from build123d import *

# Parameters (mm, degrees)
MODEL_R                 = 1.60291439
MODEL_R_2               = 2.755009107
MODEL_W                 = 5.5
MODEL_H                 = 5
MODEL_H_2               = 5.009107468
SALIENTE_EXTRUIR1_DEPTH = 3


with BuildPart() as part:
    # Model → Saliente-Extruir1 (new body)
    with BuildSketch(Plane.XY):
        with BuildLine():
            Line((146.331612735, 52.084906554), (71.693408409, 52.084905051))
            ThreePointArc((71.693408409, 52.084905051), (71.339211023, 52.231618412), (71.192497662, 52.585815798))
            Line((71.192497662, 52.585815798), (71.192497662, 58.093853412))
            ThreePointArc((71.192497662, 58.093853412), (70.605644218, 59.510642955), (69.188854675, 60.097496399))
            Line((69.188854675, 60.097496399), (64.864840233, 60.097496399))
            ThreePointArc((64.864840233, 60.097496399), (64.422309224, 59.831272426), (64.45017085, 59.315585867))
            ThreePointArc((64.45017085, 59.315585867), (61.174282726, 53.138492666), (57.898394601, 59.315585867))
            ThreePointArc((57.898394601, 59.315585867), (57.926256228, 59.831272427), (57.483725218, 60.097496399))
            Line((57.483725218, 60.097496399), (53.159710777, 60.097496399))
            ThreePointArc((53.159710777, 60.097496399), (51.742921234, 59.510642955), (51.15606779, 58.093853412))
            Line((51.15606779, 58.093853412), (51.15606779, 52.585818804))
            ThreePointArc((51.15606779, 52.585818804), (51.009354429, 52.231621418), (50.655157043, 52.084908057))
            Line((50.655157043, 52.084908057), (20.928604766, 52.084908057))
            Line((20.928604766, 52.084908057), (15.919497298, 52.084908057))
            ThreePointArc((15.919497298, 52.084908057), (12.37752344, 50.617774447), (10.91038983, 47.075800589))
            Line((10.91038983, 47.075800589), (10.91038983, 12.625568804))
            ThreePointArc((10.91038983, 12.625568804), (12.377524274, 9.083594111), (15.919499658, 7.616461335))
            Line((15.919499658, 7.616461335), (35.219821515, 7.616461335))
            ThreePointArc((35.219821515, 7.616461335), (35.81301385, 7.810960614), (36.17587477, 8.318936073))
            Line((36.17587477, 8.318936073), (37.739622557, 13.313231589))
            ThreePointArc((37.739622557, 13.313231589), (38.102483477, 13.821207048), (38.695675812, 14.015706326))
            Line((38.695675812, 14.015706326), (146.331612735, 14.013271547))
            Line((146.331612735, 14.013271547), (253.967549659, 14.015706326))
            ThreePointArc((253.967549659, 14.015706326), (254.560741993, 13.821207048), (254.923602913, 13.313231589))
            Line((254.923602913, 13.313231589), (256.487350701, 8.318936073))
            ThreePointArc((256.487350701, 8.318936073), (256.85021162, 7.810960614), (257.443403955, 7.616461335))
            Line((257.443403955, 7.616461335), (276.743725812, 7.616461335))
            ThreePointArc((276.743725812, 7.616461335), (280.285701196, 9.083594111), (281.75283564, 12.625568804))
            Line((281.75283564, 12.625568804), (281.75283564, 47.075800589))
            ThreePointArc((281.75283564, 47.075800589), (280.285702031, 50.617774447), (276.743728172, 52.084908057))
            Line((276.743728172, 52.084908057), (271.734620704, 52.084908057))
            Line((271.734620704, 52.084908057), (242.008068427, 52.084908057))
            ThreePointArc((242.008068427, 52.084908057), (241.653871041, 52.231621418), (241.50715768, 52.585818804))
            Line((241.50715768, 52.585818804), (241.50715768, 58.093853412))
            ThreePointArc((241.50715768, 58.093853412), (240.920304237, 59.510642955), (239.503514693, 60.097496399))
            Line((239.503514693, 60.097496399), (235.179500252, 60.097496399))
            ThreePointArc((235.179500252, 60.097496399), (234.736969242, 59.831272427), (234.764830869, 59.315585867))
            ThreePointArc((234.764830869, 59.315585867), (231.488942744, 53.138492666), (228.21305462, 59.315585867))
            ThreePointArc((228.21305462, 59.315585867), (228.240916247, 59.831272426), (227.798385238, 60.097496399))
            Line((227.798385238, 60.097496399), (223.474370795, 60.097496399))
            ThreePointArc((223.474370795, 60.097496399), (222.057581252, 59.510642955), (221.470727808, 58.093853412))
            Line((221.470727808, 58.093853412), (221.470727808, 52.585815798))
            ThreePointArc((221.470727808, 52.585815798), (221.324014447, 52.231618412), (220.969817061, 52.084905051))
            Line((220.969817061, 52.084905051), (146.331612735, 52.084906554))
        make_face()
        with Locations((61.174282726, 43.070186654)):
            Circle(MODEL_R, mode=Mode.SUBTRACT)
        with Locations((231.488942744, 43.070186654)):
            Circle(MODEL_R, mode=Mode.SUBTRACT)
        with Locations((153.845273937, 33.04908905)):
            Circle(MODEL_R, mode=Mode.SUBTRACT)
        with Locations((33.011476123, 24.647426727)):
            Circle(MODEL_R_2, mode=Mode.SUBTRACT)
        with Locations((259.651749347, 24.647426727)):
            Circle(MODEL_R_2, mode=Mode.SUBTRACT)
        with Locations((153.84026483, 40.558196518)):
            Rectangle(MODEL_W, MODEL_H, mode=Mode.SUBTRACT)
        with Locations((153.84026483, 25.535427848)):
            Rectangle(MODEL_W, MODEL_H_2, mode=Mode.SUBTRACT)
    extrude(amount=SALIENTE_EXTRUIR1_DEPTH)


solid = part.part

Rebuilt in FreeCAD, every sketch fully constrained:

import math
import FreeCAD as App
import Part
import Sketcher
Q = App.Units.Quantity

doc = App.newDocument("Part")
body = doc.addObject("PartDesign::Body", "Body")

sketch1 = body.newObject("Sketcher::SketchObject", "Sketch")
sketch1.AttachmentSupport = (doc.getObject("XY_Plane"), [""])
sketch1.MapMode = "FlatFace"
sketch1.addGeometry(Part.LineSegment(App.Vector(146.3, 52.1, 0), App.Vector(71.7, 52.1, 0)), False)
sketch1.addGeometry(Part.ArcOfCircle(Part.Circle(App.Vector(71.7, 52.6, 0), App.Vector(0, 0, 1), 0.5), math.radians(180), math.radians(270)), False)
sketch1.addGeometry(Part.LineSegment(App.Vector(71.2, 52.6, 0), App.Vector(71.2, 58.1, 0)), False)
sketch1.addGeometry(Part.ArcOfCircle(Part.Circle(App.Vector(69.2, 58.1, 0), App.Vector(0, 0, 1), 2), math.radians(0), math.radians(90)), False)
sketch1.addGeometry(Part.LineSegment(App.Vector(69.2, 60.1, 0), App.Vector(64.9, 60.1, 0)), False)
sketch1.addGeometry(Part.ArcOfCircle(Part.Circle(App.Vector(64.9, 59.6, 0), App.Vector(0, 0, 1), 0.5), math.radians(90), math.radians(214)), False)
sketch1.addGeometry(Part.ArcOfCircle(Part.Circle(App.Vector(61.2, 57.1, 0), App.Vector(0, 0, 1), 4), math.radians(146), math.radians(394)), False)
sketch1.addGeometry(Part.ArcOfCircle(Part.Circle(App.Vector(57.5, 59.6, 0), App.Vector(0, 0, 1), 0.5), math.radians(-34), math.radians(90)), False)
sketch1.addGeometry(Part.LineSegment(App.Vector(57.5, 60.1, 0), App.Vector(53.2, 60.1, 0)), False)
sketch1.addGeometry(Part.ArcOfCircle(Part.Circle(App.Vector(53.2, 58.1, 0), App.Vector(0, 0, 1), 2), math.radians(90), math.radians(180)), False)
sketch1.addGeometry(Part.LineSegment(App.Vector(51.2, 58.1, 0), App.Vector(51.2, 52.6, 0)), False)
sketch1.addGeometry(Part.ArcOfCircle(Part.Circle(App.Vector(50.7, 52.6, 0), App.Vector(0, 0, 1), 0.5), math.radians(-90), math.radians(0)), False)
sketch1.addGeometry(Part.LineSegment(App.Vector(50.7, 52.1, 0), App.Vector(15.9, 52.1, 0)), False)
sketch1.addGeometry(Part.ArcOfCircle(Part.Circle(App.Vector(15.9, 47.1, 0), App.Vector(0, 0, 1), 5), math.radians(90), math.radians(180)), False)
sketch1.addGeometry(Part.LineSegment(App.Vector(10.9, 47.1, 0), App.Vector(10.9, 12.6, 0)), False)
sketch1.addGeometry(Part.ArcOfCircle(Part.Circle(App.Vector(15.9, 12.6, 0), App.Vector(0, 0, 1), 5), math.radians(180), math.radians(270)), False)
sketch1.addGeometry(Part.LineSegment(App.Vector(15.9, 7.6, 0), App.Vector(35.2, 7.6, 0)), False)
sketch1.addGeometry(Part.ArcOfCircle(Part.Circle(App.Vector(35.2, 8.6, 0), App.Vector(0, 0, 1), 1), math.radians(-90), math.radians(-17)), False)
sketch1.addGeometry(Part.LineSegment(App.Vector(36.2, 8.3, 0), App.Vector(37.7, 13.3, 0)), False)
sketch1.addGeometry(Part.ArcOfCircle(Part.Circle(App.Vector(38.7, 13, 0), App.Vector(0, 0, 1), 1), math.radians(90), math.radians(163)), False)
sketch1.addGeometry(Part.LineSegment(App.Vector(38.7, 14, 0), App.Vector(146.3, 14, 0)), False)
sketch1.addGeometry(Part.LineSegment(App.Vector(146.3, 14, 0), App.Vector(254, 14, 0)), False)
sketch1.addGeometry(Part.ArcOfCircle(Part.Circle(App.Vector(254, 13, 0), App.Vector(0, 0, 1), 1), math.radians(17), math.radians(90)), False)
sketch1.addGeometry(Part.LineSegment(App.Vector(254.9, 13.3, 0), App.Vector(256.5, 8.3, 0)), False)
sketch1.addGeometry(Part.ArcOfCircle(Part.Circle(App.Vector(257.4, 8.6, 0), App.Vector(0, 0, 1), 1), math.radians(-163), math.radians(-90)), False)
sketch1.addGeometry(Part.LineSegment(App.Vector(257.4, 7.6, 0), App.Vector(276.7, 7.6, 0)), False)
sketch1.addGeometry(Part.ArcOfCircle(Part.Circle(App.Vector(276.7, 12.6, 0), App.Vector(0, 0, 1), 5), math.radians(-90), math.radians(0)), False)
sketch1.addGeometry(Part.LineSegment(App.Vector(281.8, 12.6, 0), App.Vector(281.8, 47.1, 0)), False)
sketch1.addGeometry(Part.ArcOfCircle(Part.Circle(App.Vector(276.7, 47.1, 0), App.Vector(0, 0, 1), 5), math.radians(0), math.radians(90)), False)
sketch1.addGeometry(Part.LineSegment(App.Vector(276.7, 52.1, 0), App.Vector(242, 52.1, 0)), False)
sketch1.addGeometry(Part.ArcOfCircle(Part.Circle(App.Vector(242, 52.6, 0), App.Vector(0, 0, 1), 0.5), math.radians(180), math.radians(270)), False)
sketch1.addGeometry(Part.LineSegment(App.Vector(241.5, 52.6, 0), App.Vector(241.5, 58.1, 0)), False)
sketch1.addGeometry(Part.ArcOfCircle(Part.Circle(App.Vector(239.5, 58.1, 0), App.Vector(0, 0, 1), 2), math.radians(0), math.radians(90)), False)
sketch1.addGeometry(Part.LineSegment(App.Vector(239.5, 60.1, 0), App.Vector(235.2, 60.1, 0)), False)
sketch1.addGeometry(Part.ArcOfCircle(Part.Circle(App.Vector(235.2, 59.6, 0), App.Vector(0, 0, 1), 0.5), math.radians(90), math.radians(214)), False)
sketch1.addGeometry(Part.ArcOfCircle(Part.Circle(App.Vector(231.5, 57.1, 0), App.Vector(0, 0, 1), 4), math.radians(146), math.radians(394)), False)
sketch1.addGeometry(Part.ArcOfCircle(Part.Circle(App.Vector(227.8, 59.6, 0), App.Vector(0, 0, 1), 0.5), math.radians(-34), math.radians(90)), False)
sketch1.addGeometry(Part.LineSegment(App.Vector(227.8, 60.1, 0), App.Vector(223.5, 60.1, 0)), False)
sketch1.addGeometry(Part.ArcOfCircle(Part.Circle(App.Vector(223.5, 58.1, 0), App.Vector(0, 0, 1), 2), math.radians(90), math.radians(180)), False)
sketch1.addGeometry(Part.LineSegment(App.Vector(221.5, 58.1, 0), App.Vector(221.5, 52.6, 0)), False)
sketch1.addGeometry(Part.ArcOfCircle(Part.Circle(App.Vector(221, 52.6, 0), App.Vector(0, 0, 1), 0.5), math.radians(-90), math.radians(0)), False)
sketch1.addGeometry(Part.LineSegment(App.Vector(221, 52.1, 0), App.Vector(146.3, 52.1, 0)), False)
sketch1.addGeometry(Part.Circle(App.Vector(33, 24.6, 0), App.Vector(0, 0, 1), 2.8), False)
sketch1.addGeometry(Part.LineSegment(App.Vector(156.6, 23, 0), App.Vector(151.1, 23, 0)), False)
sketch1.addGeometry(Part.LineSegment(App.Vector(151.1, 23, 0), App.Vector(151.1, 28, 0)), False)
sketch1.addGeometry(Part.LineSegment(App.Vector(151.1, 28, 0), App.Vector(156.6, 28, 0)), False)
sketch1.addGeometry(Part.LineSegment(App.Vector(156.6, 28, 0), App.Vector(156.6, 23, 0)), False)
sketch1.addGeometry(Part.Circle(App.Vector(259.7, 24.6, 0), App.Vector(0, 0, 1), 2.8), False)
sketch1.addGeometry(Part.Circle(App.Vector(153.8, 33, 0), App.Vector(0, 0, 1), 1.6), False)
sketch1.addGeometry(Part.Circle(App.Vector(61.2, 43.1, 0), App.Vector(0, 0, 1), 1.6), False)
sketch1.addGeometry(Part.LineSegment(App.Vector(156.6, 38.1, 0), App.Vector(151.1, 38.1, 0)), False)
sketch1.addGeometry(Part.LineSegment(App.Vector(151.1, 38.1, 0), App.Vector(151.1, 43.1, 0)), False)
sketch1.addGeometry(Part.LineSegment(App.Vector(151.1, 43.1, 0), App.Vector(156.6, 43.1, 0)), False)
sketch1.addGeometry(Part.LineSegment(App.Vector(156.6, 43.1, 0), App.Vector(156.6, 38.1, 0)), False)
sketch1.addGeometry(Part.Circle(App.Vector(231.5, 43.1, 0), App.Vector(0, 0, 1), 1.6), False)
sketch1.addConstraint(Sketcher.Constraint("Tangent", 0, 2, 1, 2))
sketch1.addConstraint(Sketcher.Constraint("Tangent", 1, 1, 2, 1))
sketch1.addConstraint(Sketcher.Constraint("Tangent", 2, 2, 3, 1))
sketch1.addConstraint(Sketcher.Constraint("Tangent", 3, 2, 4, 1))
sketch1.addConstraint(Sketcher.Constraint("Tangent", 4, 2, 5, 1))
sketch1.addConstraint(Sketcher.Constraint("Tangent", 5, 2, 6, 2))
sketch1.addConstraint(Sketcher.Constraint("Tangent", 6, 1, 7, 1))
sketch1.addConstraint(Sketcher.Constraint("Tangent", 7, 2, 8, 1))
sketch1.addConstraint(Sketcher.Constraint("Tangent", 8, 2, 9, 1))
sketch1.addConstraint(Sketcher.Constraint("Tangent", 9, 2, 10, 1))
sketch1.addConstraint(Sketcher.Constraint("Tangent", 10, 2, 11, 2))
sketch1.addConstraint(Sketcher.Constraint("Tangent", 11, 1, 12, 1))
sketch1.addConstraint(Sketcher.Constraint("Tangent", 12, 2, 13, 1))
sketch1.addConstraint(Sketcher.Constraint("Tangent", 13, 2, 14, 1))
sketch1.addConstraint(Sketcher.Constraint("Tangent", 14, 2, 15, 1))
sketch1.addConstraint(Sketcher.Constraint("Tangent", 15, 2, 16, 1))
sketch1.addConstraint(Sketcher.Constraint("Tangent", 16, 2, 17, 1))
sketch1.addConstraint(Sketcher.Constraint("Tangent", 17, 2, 18, 1))
sketch1.addConstraint(Sketcher.Constraint("Tangent", 18, 2, 19, 2))
sketch1.addConstraint(Sketcher.Constraint("Coincident", 19, 1, 20, 1))
sketch1.addConstraint(Sketcher.Constraint("Coincident", 20, 2, 21, 1))
sketch1.addConstraint(Sketcher.Constraint("Coincident", 21, 2, 22, 2))
sketch1.addConstraint(Sketcher.Constraint("Tangent", 22, 1, 23, 1))
sketch1.addConstraint(Sketcher.Constraint("Tangent", 23, 2, 24, 1))
sketch1.addConstraint(Sketcher.Constraint("Tangent", 24, 2, 25, 1))
sketch1.addConstraint(Sketcher.Constraint("Tangent", 25, 2, 26, 1))
sketch1.addConstraint(Sketcher.Constraint("Tangent", 26, 2, 27, 1))
sketch1.addConstraint(Sketcher.Constraint("Tangent", 27, 2, 28, 1))
sketch1.addConstraint(Sketcher.Constraint("Tangent", 28, 2, 29, 1))
sketch1.addConstraint(Sketcher.Constraint("Tangent", 29, 2, 30, 2))
sketch1.addConstraint(Sketcher.Constraint("Tangent", 30, 1, 31, 1))
sketch1.addConstraint(Sketcher.Constraint("Tangent", 31, 2, 32, 1))
sketch1.addConstraint(Sketcher.Constraint("Tangent", 32, 2, 33, 1))
sketch1.addConstraint(Sketcher.Constraint("Tangent", 33, 2, 34, 1))
sketch1.addConstraint(Sketcher.Constraint("Tangent", 34, 2, 35, 2))
sketch1.addConstraint(Sketcher.Constraint("Tangent", 35, 1, 36, 1))
sketch1.addConstraint(Sketcher.Constraint("Tangent", 36, 2, 37, 1))
sketch1.addConstraint(Sketcher.Constraint("Tangent", 37, 2, 38, 1))
sketch1.addConstraint(Sketcher.Constraint("Tangent", 38, 2, 39, 1))
sketch1.addConstraint(Sketcher.Constraint("Tangent", 39, 2, 40, 2))
sketch1.addConstraint(Sketcher.Constraint("Tangent", 40, 1, 41, 1))
sketch1.addConstraint(Sketcher.Constraint("Coincident", 41, 2, 0, 1))
sketch1.addConstraint(Sketcher.Constraint("Coincident", 43, 2, 44, 1))
sketch1.addConstraint(Sketcher.Constraint("Coincident", 44, 2, 45, 1))
sketch1.addConstraint(Sketcher.Constraint("Coincident", 45, 2, 46, 1))
sketch1.addConstraint(Sketcher.Constraint("Coincident", 46, 2, 43, 1))
sketch1.addConstraint(Sketcher.Constraint("Coincident", 50, 2, 51, 1))
sketch1.addConstraint(Sketcher.Constraint("Coincident", 51, 2, 52, 1))
sketch1.addConstraint(Sketcher.Constraint("Coincident", 52, 2, 53, 1))
sketch1.addConstraint(Sketcher.Constraint("Coincident", 53, 2, 50, 1))
sketch1.addConstraint(Sketcher.Constraint("Horizontal", 0))
sketch1.addConstraint(Sketcher.Constraint("Vertical", 2))
sketch1.addConstraint(Sketcher.Constraint("Horizontal", 4))
sketch1.addConstraint(Sketcher.Constraint("Horizontal", 8))
sketch1.addConstraint(Sketcher.Constraint("Vertical", 10))
sketch1.addConstraint(Sketcher.Constraint("Horizontal", 12))
sketch1.addConstraint(Sketcher.Constraint("Vertical", 14))
sketch1.addConstraint(Sketcher.Constraint("Horizontal", 16))
sketch1.addConstraint(Sketcher.Constraint("Horizontal", 25))
sketch1.addConstraint(Sketcher.Constraint("Vertical", 27))
sketch1.addConstraint(Sketcher.Constraint("Horizontal", 29))
sketch1.addConstraint(Sketcher.Constraint("Vertical", 31))
sketch1.addConstraint(Sketcher.Constraint("Horizontal", 33))
sketch1.addConstraint(Sketcher.Constraint("Horizontal", 37))
sketch1.addConstraint(Sketcher.Constraint("Vertical", 39))
sketch1.addConstraint(Sketcher.Constraint("Horizontal", 41))
sketch1.addConstraint(Sketcher.Constraint("Horizontal", 43))
sketch1.addConstraint(Sketcher.Constraint("Vertical", 44))
sketch1.addConstraint(Sketcher.Constraint("Horizontal", 45))
sketch1.addConstraint(Sketcher.Constraint("Vertical", 46))
sketch1.addConstraint(Sketcher.Constraint("Horizontal", 50))
sketch1.addConstraint(Sketcher.Constraint("Vertical", 51))
sketch1.addConstraint(Sketcher.Constraint("Horizontal", 52))
sketch1.addConstraint(Sketcher.Constraint("Vertical", 53))
sketch1.addConstraint(Sketcher.Constraint("Equal", 1, 5))
sketch1.addConstraint(Sketcher.Constraint("Equal", 5, 7))
sketch1.addConstraint(Sketcher.Constraint("Equal", 3, 9))
sketch1.addConstraint(Sketcher.Constraint("Equal", 7, 11))
sketch1.addConstraint(Sketcher.Constraint("Equal", 13, 15))
sketch1.addConstraint(Sketcher.Constraint("Equal", 17, 19))
sketch1.addConstraint(Sketcher.Constraint("Equal", 19, 22))
sketch1.addConstraint(Sketcher.Constraint("Equal", 22, 24))
sketch1.addConstraint(Sketcher.Constraint("Equal", 15, 26))
sketch1.addConstraint(Sketcher.Constraint("Equal", 26, 28))
sketch1.addConstraint(Sketcher.Constraint("Equal", 11, 30))
sketch1.addConstraint(Sketcher.Constraint("Equal", 9, 32))
sketch1.addConstraint(Sketcher.Constraint("Equal", 30, 34))
sketch1.addConstraint(Sketcher.Constraint("Equal", 6, 35))
sketch1.addConstraint(Sketcher.Constraint("Equal", 34, 36))
sketch1.addConstraint(Sketcher.Constraint("Equal", 32, 38))
sketch1.addConstraint(Sketcher.Constraint("Equal", 36, 40))
sketch1.addConstraint(Sketcher.Constraint("Equal", 42, 47))
sketch1.addConstraint(Sketcher.Constraint("Equal", 48, 49))
sketch1.addConstraint(Sketcher.Constraint("Equal", 49, 54))
sketch1.addConstraint(Sketcher.Constraint("Horizontal", 5, 3, 7, 3))
sketch1.addConstraint(Sketcher.Constraint("Horizontal", 19, 3, 22, 3))
sketch1.addConstraint(Sketcher.Constraint("Horizontal", 17, 3, 24, 3))
sketch1.addConstraint(Sketcher.Constraint("Horizontal", 13, 3, 28, 3))
sketch1.addConstraint(Sketcher.Constraint("Horizontal", 9, 3, 32, 3))
sketch1.addConstraint(Sketcher.Constraint("Horizontal", 6, 3, 35, 3))
sketch1.addConstraint(Sketcher.Constraint("Horizontal", 34, 3, 36, 3))
sketch1.addConstraint(Sketcher.Constraint("Horizontal", 42, 3, 47, 3))
sketch1.addConstraint(Sketcher.Constraint("Horizontal", 49, 3, 54, 3))
sketch1.addConstraint(Sketcher.Constraint("Horizontal", 18, 2, 22, 1))
sketch1.addConstraint(Sketcher.Constraint("Vertical", 6, 3, 49, 3))
sketch1.addConstraint(Sketcher.Constraint("Vertical", 35, 3, 54, 3))
sketch1.addConstraint(Sketcher.Constraint("Vertical", 22, 3, 21, 2))
sketch1.addConstraint(Sketcher.Constraint("Vertical", 20, 2, 41, 2))
sketch1.addConstraint(Sketcher.Constraint("Vertical", 44, 2, 50, 2))
sketch1.addConstraint(Sketcher.Constraint("Vertical", 46, 2, 52, 2))
sketch1.addConstraint(Sketcher.Constraint("Equal", 4, 8))
sketch1.addConstraint(Sketcher.Constraint("Equal", 16, 25))
sketch1.addConstraint(Sketcher.Constraint("Equal", 12, 29))
sketch1.addConstraint(Sketcher.Constraint("Equal", 8, 33))
sketch1.addConstraint(Sketcher.Constraint("Equal", 33, 37))
sketch1.addConstraint(Sketcher.Constraint("Equal", 0, 41))
sketch1.addConstraint(Sketcher.Constraint("Equal", 20, 21))
sketch1.addConstraint(Sketcher.Constraint("DistanceY", 51, 1, 51, 2, Q("5 mm")))
sketch1.addConstraint(Sketcher.Constraint("DistanceX", 43, 2, 43, 1, Q("5.5 mm")))
sketch1.addConstraint(Sketcher.Constraint("Diameter", 42, Q("5.510018 mm")))
sketch1.addConstraint(Sketcher.Constraint("Diameter", 48, Q("3.205829 mm")))
sketch1.addConstraint(Sketcher.Constraint("Radius", 1, Q("0.500911 mm")))
sketch1.addConstraint(Sketcher.Constraint("Radius", 17, Q("1.001821 mm")))
sketch1.addConstraint(Sketcher.Constraint("Radius", 3, Q("2.003643 mm")))
sketch1.addConstraint(Sketcher.Constraint("Radius", 6, Q("3.957195 mm")))
sketch1.addConstraint(Sketcher.Constraint("Radius", 13, Q("5.009107 mm")))
sketch1.addConstraint(Sketcher.Constraint("DistanceX", 12, 2, 12, 1, Q("34.73566 mm")))
sketch1.addConstraint(Sketcher.Constraint("DistanceX", 16, 1, 16, 2, Q("19.300322 mm")))
sketch1.addConstraint(Sketcher.Constraint("DistanceY", 14, 2, 14, 1, Q("34.450232 mm")))
sketch1.addConstraint(Sketcher.Constraint("DistanceY", -1, 1, 13, 3, Q("47.075801 mm")))
sketch1.addConstraint(Sketcher.Constraint("DistanceX", -1, 1, 34, 3, Q("235.1795 mm")))
sketch1.addConstraint(Sketcher.Constraint("DistanceX", -1, 1, 15, 2, Q("15.9195 mm")))
sketch1.addConstraint(Sketcher.Constraint("DistanceX", 0, 2, 0, 1, Q("74.638204 mm")))
sketch1.addConstraint(Sketcher.Constraint("DistanceX", 4, 2, 4, 1, Q("4.324014 mm")))
sketch1.addConstraint(Sketcher.Constraint("DistanceY", 2, 1, 2, 2, Q("5.508038 mm")))
sketch1.addConstraint(Sketcher.Constraint("DistanceY", 10, 2, 10, 1, Q("5.508035 mm")))
sketch1.addConstraint(Sketcher.Constraint("DistanceY", 44, 1, 44, 2, Q("5.009107 mm")))
sketch1.addConstraint(Sketcher.Constraint("DistanceX", -1, 1, 22, 3, Q("253.96755 mm")))
sketch1.addConstraint(Sketcher.Constraint("DistanceX", -1, 1, 47, 3, Q("259.651749 mm")))
sketch1.addConstraint(Sketcher.Constraint("DistanceY", -1, 1, 48, 3, Q("33.049089 mm")))
sketch1.addConstraint(Sketcher.Constraint("DistanceY", -1, 1, 18, 2, Q("13.313232 mm")))
sketch1.addConstraint(Sketcher.Constraint("DistanceY", -1, 1, 20, 2, Q("14.013272 mm")))
sketch1.addConstraint(Sketcher.Constraint("DistanceY", -1, 1, 44, 2, Q("28.039982 mm")))
sketch1.addConstraint(Sketcher.Constraint("DistanceX", -1, 1, 42, 3, Q("33.011476 mm")))
sketch1.addConstraint(Sketcher.Constraint("DistanceY", -1, 1, 42, 3, Q("24.647427 mm")))
sketch1.addConstraint(Sketcher.Constraint("DistanceX", -1, 1, 48, 3, Q("153.845274 mm")))
sketch1.addConstraint(Sketcher.Constraint("DistanceY", -1, 1, 49, 3, Q("43.070187 mm")))
sketch1.addConstraint(Sketcher.Constraint("DistanceX", -1, 1, 43, 2, Q("151.090265 mm")))
sketch1.addConstraint(Sketcher.Constraint("DistanceY", -1, 1, 50, 2, Q("38.058197 mm")))
pad1 = body.newObject("PartDesign::Pad", "Pad")
pad1.Profile = sketch1
pad1.Length = 3

doc.recompute()
